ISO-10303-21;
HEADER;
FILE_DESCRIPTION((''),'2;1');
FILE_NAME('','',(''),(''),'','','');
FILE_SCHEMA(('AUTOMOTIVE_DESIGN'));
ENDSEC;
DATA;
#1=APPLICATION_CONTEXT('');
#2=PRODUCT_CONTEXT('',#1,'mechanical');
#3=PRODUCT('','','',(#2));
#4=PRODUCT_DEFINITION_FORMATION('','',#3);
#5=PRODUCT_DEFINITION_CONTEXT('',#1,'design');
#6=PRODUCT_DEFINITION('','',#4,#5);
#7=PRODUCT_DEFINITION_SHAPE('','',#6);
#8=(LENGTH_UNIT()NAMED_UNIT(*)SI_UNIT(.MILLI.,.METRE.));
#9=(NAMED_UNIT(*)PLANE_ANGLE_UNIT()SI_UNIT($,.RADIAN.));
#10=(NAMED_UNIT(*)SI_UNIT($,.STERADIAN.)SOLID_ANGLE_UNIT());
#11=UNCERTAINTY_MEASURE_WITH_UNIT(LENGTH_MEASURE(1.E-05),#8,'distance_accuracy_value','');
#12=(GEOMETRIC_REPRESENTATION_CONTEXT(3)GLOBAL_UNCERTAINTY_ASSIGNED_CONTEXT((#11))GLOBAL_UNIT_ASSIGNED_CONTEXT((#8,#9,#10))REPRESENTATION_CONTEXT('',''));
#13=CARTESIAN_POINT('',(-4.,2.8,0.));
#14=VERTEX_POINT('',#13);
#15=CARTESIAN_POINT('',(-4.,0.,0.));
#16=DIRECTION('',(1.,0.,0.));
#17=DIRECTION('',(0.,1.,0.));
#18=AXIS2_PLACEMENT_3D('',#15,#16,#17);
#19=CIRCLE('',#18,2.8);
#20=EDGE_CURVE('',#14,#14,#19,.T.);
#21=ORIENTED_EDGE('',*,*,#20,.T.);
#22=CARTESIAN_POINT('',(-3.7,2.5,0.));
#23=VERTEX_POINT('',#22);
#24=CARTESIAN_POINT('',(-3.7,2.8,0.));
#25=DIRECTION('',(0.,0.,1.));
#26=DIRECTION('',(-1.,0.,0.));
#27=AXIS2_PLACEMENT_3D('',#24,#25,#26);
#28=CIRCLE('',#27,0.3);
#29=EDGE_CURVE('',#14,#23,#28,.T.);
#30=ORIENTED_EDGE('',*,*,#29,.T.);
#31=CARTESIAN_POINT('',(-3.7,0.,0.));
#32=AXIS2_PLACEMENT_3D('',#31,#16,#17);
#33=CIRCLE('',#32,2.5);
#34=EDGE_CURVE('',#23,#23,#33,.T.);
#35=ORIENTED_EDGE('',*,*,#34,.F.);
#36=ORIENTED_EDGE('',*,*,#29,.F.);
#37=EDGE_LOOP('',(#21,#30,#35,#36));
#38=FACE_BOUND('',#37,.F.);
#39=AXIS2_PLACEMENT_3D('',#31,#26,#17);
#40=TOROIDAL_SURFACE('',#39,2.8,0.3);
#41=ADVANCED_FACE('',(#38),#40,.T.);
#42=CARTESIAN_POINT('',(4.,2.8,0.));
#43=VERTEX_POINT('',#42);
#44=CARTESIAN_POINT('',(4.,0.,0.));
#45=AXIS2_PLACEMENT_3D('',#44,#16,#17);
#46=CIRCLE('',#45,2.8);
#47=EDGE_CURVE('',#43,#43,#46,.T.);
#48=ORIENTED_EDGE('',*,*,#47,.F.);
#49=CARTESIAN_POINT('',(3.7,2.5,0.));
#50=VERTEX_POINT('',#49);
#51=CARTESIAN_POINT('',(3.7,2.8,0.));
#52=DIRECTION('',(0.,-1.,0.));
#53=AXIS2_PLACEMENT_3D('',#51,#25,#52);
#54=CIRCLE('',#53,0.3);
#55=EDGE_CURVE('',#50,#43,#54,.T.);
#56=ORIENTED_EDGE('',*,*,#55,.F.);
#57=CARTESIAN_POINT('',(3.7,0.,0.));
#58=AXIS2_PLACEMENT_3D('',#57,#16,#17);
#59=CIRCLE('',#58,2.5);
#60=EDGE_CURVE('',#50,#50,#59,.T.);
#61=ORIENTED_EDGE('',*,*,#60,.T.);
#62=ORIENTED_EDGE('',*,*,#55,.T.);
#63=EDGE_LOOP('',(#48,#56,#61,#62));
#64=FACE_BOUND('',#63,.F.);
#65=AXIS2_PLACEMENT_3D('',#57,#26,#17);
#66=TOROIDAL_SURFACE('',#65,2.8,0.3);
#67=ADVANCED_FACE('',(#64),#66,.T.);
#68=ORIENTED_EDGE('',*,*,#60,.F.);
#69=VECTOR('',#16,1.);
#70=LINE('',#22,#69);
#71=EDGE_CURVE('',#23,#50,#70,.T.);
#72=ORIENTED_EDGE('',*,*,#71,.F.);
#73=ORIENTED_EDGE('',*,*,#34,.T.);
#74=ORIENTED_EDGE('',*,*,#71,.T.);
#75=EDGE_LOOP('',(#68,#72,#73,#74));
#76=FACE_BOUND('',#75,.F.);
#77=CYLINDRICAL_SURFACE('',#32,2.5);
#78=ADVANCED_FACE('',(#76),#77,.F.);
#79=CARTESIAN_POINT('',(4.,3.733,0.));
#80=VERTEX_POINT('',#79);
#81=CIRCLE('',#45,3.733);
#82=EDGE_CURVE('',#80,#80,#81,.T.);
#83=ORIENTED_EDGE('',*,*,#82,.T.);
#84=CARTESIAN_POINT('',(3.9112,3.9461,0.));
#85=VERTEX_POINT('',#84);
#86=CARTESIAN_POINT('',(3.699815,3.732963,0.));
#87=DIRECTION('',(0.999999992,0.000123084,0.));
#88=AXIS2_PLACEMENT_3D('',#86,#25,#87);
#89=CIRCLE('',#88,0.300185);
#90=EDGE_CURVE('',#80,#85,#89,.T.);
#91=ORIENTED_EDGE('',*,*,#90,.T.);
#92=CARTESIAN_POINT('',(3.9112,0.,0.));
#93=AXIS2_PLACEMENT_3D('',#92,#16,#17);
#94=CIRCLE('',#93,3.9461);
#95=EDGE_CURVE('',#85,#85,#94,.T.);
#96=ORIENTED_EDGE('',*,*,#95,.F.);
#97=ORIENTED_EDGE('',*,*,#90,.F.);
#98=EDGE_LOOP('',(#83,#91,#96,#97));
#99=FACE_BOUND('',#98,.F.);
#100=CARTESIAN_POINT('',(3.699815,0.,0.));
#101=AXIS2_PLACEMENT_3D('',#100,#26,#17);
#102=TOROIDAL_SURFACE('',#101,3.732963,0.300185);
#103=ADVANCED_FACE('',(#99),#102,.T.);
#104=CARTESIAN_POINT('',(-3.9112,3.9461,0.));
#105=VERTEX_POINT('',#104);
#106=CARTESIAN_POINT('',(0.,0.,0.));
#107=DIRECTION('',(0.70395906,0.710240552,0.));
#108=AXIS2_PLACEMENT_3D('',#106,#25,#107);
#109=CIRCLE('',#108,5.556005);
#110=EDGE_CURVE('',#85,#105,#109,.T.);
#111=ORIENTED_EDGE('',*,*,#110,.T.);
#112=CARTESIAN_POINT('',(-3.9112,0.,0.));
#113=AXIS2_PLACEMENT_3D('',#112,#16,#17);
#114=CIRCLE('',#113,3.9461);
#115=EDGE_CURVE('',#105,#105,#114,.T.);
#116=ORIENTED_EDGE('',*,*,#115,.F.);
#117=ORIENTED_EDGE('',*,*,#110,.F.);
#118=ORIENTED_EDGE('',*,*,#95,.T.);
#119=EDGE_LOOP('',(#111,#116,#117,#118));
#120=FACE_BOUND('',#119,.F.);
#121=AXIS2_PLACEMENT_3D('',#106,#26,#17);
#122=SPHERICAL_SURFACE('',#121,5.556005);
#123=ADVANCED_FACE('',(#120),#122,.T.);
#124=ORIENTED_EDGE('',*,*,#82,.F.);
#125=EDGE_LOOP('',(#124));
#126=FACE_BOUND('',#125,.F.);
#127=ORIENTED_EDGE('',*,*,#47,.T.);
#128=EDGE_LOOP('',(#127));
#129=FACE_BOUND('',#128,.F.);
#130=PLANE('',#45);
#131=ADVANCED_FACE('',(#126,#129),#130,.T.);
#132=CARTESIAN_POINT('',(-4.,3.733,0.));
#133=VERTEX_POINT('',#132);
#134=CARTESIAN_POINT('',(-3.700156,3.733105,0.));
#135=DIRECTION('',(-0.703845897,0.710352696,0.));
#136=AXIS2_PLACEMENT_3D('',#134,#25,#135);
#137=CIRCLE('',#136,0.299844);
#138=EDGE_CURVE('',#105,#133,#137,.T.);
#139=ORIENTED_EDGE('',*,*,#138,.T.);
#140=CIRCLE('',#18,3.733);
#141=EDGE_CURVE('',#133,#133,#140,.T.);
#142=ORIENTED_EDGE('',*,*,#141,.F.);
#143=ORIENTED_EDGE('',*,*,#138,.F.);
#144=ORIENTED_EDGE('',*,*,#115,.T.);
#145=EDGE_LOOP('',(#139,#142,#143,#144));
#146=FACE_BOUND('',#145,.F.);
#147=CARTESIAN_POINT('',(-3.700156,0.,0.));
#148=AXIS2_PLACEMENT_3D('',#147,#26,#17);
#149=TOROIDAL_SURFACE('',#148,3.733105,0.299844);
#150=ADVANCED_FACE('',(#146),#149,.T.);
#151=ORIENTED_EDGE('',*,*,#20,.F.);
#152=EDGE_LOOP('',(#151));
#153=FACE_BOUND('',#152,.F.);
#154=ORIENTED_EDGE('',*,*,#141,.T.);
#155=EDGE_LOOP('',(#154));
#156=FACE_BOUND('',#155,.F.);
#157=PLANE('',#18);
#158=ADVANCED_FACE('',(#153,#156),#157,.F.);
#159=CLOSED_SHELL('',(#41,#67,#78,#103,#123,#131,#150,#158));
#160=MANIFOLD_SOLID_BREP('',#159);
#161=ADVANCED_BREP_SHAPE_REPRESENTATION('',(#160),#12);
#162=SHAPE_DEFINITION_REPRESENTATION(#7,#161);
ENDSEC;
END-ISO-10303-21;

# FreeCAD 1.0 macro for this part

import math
import FreeCAD as App
import Part
import Sketcher

V = App.Vector

doc = App.newDocument("Part")
params = doc.addObject("Spreadsheet::Sheet", "Params")
for row, (alias, value) in enumerate([
    ("sketch1_radius", "0.3 mm"),
    ("sketch1_width", "7.4 mm"),
    ("revolution_angle", "360 deg"),
], start=1):
    params.set(f"A{row}", alias)
    params.set(f"B{row}", "=" + value)
    params.setAlias(f"B{row}", alias)

body = doc.addObject("PartDesign::Body", "Body")

# Sketch on XY plane
sketch1 = body.newObject("Sketcher::SketchObject", "Sketch")
sketch1.AttachmentSupport = (doc.getObject("XY_Plane"), [""])
sketch1.MapMode = "FlatFace"
sketch1.addGeometry([
    Part.LineSegment(V(-4, 3.73, 0), V(-4, 2.8, 0)),  # 0
    Part.ArcOfCircle(Part.Circle(V(-3.7, 2.8, 0), V(0, 0, 1), 0.3), math.radians(180), math.radians(270)),  # 1
    Part.LineSegment(V(-3.7, 2.5, 0), V(3.7, 2.5, 0)),  # 2
    Part.ArcOfCircle(Part.Circle(V(3.7, 2.8, 0), V(0, 0, 1), 0.3), math.radians(-90), math.radians(0)),  # 3
    Part.LineSegment(V(4, 2.8, 0), V(4, 3.73, 0)),  # 4
    Part.ArcOfCircle(Part.Circle(V(3.7, 3.73, 0), V(0, 0, 1), 0.3), math.radians(0), math.radians(45)),  # 5
    Part.ArcOfCircle(Part.Circle(V(0, 0, 0), V(0, 0, 1), 5.56), math.radians(45), math.radians(135)),  # 6
    Part.ArcOfCircle(Part.Circle(V(-3.7, 3.73, 0), V(0, 0, 1), 0.3), math.radians(135), math.radians(180)),  # 7
], False)
sketch1.addConstraint([
    Sketcher.Constraint("Tangent", 0, 2, 1, 1),
    Sketcher.Constraint("Tangent", 1, 2, 2, 1),
    Sketcher.Constraint("Tangent", 2, 2, 3, 1),
    Sketcher.Constraint("Tangent", 3, 2, 4, 1),
    Sketcher.Constraint("Tangent", 4, 2, 5, 1),
    Sketcher.Constraint("Tangent", 5, 2, 6, 1),
    Sketcher.Constraint("Tangent", 6, 2, 7, 1),
    Sketcher.Constraint("Tangent", 7, 2, 0, 1),
    Sketcher.Constraint("Vertical", 0),
    Sketcher.Constraint("Horizontal", 2),
    Sketcher.Constraint("Vertical", 4),
    Sketcher.Constraint("Coincident", 6, 3, -1, 1),
    Sketcher.Constraint("Equal", 1, 3),
    Sketcher.Constraint("Equal", 3, 5),
    Sketcher.Constraint("Equal", 5, 7),
    Sketcher.Constraint("Horizontal", 5, 3, 7, 3),
    Sketcher.Constraint("Radius", 1, 0.3),
    Sketcher.Constraint("DistanceX", 2, 1, 2, 2, 7.4),
    Sketcher.Constraint("Radius", 6, 5.556),
    Sketcher.Constraint("DistanceY", -1, 1, 1, 3, 2.8),
])
sketch1.setExpression("Constraints[16]", "Params.sketch1_radius")
sketch1.setExpression("Constraints[17]", "Params.sketch1_width")
revolution = body.newObject("PartDesign::Revolution", "Revolution")
revolution.Profile = sketch1
revolution.ReferenceAxis = (sketch1, ["H_Axis"])
revolution.setExpression("Angle", "Params.revolution_angle")

doc.recompute()
